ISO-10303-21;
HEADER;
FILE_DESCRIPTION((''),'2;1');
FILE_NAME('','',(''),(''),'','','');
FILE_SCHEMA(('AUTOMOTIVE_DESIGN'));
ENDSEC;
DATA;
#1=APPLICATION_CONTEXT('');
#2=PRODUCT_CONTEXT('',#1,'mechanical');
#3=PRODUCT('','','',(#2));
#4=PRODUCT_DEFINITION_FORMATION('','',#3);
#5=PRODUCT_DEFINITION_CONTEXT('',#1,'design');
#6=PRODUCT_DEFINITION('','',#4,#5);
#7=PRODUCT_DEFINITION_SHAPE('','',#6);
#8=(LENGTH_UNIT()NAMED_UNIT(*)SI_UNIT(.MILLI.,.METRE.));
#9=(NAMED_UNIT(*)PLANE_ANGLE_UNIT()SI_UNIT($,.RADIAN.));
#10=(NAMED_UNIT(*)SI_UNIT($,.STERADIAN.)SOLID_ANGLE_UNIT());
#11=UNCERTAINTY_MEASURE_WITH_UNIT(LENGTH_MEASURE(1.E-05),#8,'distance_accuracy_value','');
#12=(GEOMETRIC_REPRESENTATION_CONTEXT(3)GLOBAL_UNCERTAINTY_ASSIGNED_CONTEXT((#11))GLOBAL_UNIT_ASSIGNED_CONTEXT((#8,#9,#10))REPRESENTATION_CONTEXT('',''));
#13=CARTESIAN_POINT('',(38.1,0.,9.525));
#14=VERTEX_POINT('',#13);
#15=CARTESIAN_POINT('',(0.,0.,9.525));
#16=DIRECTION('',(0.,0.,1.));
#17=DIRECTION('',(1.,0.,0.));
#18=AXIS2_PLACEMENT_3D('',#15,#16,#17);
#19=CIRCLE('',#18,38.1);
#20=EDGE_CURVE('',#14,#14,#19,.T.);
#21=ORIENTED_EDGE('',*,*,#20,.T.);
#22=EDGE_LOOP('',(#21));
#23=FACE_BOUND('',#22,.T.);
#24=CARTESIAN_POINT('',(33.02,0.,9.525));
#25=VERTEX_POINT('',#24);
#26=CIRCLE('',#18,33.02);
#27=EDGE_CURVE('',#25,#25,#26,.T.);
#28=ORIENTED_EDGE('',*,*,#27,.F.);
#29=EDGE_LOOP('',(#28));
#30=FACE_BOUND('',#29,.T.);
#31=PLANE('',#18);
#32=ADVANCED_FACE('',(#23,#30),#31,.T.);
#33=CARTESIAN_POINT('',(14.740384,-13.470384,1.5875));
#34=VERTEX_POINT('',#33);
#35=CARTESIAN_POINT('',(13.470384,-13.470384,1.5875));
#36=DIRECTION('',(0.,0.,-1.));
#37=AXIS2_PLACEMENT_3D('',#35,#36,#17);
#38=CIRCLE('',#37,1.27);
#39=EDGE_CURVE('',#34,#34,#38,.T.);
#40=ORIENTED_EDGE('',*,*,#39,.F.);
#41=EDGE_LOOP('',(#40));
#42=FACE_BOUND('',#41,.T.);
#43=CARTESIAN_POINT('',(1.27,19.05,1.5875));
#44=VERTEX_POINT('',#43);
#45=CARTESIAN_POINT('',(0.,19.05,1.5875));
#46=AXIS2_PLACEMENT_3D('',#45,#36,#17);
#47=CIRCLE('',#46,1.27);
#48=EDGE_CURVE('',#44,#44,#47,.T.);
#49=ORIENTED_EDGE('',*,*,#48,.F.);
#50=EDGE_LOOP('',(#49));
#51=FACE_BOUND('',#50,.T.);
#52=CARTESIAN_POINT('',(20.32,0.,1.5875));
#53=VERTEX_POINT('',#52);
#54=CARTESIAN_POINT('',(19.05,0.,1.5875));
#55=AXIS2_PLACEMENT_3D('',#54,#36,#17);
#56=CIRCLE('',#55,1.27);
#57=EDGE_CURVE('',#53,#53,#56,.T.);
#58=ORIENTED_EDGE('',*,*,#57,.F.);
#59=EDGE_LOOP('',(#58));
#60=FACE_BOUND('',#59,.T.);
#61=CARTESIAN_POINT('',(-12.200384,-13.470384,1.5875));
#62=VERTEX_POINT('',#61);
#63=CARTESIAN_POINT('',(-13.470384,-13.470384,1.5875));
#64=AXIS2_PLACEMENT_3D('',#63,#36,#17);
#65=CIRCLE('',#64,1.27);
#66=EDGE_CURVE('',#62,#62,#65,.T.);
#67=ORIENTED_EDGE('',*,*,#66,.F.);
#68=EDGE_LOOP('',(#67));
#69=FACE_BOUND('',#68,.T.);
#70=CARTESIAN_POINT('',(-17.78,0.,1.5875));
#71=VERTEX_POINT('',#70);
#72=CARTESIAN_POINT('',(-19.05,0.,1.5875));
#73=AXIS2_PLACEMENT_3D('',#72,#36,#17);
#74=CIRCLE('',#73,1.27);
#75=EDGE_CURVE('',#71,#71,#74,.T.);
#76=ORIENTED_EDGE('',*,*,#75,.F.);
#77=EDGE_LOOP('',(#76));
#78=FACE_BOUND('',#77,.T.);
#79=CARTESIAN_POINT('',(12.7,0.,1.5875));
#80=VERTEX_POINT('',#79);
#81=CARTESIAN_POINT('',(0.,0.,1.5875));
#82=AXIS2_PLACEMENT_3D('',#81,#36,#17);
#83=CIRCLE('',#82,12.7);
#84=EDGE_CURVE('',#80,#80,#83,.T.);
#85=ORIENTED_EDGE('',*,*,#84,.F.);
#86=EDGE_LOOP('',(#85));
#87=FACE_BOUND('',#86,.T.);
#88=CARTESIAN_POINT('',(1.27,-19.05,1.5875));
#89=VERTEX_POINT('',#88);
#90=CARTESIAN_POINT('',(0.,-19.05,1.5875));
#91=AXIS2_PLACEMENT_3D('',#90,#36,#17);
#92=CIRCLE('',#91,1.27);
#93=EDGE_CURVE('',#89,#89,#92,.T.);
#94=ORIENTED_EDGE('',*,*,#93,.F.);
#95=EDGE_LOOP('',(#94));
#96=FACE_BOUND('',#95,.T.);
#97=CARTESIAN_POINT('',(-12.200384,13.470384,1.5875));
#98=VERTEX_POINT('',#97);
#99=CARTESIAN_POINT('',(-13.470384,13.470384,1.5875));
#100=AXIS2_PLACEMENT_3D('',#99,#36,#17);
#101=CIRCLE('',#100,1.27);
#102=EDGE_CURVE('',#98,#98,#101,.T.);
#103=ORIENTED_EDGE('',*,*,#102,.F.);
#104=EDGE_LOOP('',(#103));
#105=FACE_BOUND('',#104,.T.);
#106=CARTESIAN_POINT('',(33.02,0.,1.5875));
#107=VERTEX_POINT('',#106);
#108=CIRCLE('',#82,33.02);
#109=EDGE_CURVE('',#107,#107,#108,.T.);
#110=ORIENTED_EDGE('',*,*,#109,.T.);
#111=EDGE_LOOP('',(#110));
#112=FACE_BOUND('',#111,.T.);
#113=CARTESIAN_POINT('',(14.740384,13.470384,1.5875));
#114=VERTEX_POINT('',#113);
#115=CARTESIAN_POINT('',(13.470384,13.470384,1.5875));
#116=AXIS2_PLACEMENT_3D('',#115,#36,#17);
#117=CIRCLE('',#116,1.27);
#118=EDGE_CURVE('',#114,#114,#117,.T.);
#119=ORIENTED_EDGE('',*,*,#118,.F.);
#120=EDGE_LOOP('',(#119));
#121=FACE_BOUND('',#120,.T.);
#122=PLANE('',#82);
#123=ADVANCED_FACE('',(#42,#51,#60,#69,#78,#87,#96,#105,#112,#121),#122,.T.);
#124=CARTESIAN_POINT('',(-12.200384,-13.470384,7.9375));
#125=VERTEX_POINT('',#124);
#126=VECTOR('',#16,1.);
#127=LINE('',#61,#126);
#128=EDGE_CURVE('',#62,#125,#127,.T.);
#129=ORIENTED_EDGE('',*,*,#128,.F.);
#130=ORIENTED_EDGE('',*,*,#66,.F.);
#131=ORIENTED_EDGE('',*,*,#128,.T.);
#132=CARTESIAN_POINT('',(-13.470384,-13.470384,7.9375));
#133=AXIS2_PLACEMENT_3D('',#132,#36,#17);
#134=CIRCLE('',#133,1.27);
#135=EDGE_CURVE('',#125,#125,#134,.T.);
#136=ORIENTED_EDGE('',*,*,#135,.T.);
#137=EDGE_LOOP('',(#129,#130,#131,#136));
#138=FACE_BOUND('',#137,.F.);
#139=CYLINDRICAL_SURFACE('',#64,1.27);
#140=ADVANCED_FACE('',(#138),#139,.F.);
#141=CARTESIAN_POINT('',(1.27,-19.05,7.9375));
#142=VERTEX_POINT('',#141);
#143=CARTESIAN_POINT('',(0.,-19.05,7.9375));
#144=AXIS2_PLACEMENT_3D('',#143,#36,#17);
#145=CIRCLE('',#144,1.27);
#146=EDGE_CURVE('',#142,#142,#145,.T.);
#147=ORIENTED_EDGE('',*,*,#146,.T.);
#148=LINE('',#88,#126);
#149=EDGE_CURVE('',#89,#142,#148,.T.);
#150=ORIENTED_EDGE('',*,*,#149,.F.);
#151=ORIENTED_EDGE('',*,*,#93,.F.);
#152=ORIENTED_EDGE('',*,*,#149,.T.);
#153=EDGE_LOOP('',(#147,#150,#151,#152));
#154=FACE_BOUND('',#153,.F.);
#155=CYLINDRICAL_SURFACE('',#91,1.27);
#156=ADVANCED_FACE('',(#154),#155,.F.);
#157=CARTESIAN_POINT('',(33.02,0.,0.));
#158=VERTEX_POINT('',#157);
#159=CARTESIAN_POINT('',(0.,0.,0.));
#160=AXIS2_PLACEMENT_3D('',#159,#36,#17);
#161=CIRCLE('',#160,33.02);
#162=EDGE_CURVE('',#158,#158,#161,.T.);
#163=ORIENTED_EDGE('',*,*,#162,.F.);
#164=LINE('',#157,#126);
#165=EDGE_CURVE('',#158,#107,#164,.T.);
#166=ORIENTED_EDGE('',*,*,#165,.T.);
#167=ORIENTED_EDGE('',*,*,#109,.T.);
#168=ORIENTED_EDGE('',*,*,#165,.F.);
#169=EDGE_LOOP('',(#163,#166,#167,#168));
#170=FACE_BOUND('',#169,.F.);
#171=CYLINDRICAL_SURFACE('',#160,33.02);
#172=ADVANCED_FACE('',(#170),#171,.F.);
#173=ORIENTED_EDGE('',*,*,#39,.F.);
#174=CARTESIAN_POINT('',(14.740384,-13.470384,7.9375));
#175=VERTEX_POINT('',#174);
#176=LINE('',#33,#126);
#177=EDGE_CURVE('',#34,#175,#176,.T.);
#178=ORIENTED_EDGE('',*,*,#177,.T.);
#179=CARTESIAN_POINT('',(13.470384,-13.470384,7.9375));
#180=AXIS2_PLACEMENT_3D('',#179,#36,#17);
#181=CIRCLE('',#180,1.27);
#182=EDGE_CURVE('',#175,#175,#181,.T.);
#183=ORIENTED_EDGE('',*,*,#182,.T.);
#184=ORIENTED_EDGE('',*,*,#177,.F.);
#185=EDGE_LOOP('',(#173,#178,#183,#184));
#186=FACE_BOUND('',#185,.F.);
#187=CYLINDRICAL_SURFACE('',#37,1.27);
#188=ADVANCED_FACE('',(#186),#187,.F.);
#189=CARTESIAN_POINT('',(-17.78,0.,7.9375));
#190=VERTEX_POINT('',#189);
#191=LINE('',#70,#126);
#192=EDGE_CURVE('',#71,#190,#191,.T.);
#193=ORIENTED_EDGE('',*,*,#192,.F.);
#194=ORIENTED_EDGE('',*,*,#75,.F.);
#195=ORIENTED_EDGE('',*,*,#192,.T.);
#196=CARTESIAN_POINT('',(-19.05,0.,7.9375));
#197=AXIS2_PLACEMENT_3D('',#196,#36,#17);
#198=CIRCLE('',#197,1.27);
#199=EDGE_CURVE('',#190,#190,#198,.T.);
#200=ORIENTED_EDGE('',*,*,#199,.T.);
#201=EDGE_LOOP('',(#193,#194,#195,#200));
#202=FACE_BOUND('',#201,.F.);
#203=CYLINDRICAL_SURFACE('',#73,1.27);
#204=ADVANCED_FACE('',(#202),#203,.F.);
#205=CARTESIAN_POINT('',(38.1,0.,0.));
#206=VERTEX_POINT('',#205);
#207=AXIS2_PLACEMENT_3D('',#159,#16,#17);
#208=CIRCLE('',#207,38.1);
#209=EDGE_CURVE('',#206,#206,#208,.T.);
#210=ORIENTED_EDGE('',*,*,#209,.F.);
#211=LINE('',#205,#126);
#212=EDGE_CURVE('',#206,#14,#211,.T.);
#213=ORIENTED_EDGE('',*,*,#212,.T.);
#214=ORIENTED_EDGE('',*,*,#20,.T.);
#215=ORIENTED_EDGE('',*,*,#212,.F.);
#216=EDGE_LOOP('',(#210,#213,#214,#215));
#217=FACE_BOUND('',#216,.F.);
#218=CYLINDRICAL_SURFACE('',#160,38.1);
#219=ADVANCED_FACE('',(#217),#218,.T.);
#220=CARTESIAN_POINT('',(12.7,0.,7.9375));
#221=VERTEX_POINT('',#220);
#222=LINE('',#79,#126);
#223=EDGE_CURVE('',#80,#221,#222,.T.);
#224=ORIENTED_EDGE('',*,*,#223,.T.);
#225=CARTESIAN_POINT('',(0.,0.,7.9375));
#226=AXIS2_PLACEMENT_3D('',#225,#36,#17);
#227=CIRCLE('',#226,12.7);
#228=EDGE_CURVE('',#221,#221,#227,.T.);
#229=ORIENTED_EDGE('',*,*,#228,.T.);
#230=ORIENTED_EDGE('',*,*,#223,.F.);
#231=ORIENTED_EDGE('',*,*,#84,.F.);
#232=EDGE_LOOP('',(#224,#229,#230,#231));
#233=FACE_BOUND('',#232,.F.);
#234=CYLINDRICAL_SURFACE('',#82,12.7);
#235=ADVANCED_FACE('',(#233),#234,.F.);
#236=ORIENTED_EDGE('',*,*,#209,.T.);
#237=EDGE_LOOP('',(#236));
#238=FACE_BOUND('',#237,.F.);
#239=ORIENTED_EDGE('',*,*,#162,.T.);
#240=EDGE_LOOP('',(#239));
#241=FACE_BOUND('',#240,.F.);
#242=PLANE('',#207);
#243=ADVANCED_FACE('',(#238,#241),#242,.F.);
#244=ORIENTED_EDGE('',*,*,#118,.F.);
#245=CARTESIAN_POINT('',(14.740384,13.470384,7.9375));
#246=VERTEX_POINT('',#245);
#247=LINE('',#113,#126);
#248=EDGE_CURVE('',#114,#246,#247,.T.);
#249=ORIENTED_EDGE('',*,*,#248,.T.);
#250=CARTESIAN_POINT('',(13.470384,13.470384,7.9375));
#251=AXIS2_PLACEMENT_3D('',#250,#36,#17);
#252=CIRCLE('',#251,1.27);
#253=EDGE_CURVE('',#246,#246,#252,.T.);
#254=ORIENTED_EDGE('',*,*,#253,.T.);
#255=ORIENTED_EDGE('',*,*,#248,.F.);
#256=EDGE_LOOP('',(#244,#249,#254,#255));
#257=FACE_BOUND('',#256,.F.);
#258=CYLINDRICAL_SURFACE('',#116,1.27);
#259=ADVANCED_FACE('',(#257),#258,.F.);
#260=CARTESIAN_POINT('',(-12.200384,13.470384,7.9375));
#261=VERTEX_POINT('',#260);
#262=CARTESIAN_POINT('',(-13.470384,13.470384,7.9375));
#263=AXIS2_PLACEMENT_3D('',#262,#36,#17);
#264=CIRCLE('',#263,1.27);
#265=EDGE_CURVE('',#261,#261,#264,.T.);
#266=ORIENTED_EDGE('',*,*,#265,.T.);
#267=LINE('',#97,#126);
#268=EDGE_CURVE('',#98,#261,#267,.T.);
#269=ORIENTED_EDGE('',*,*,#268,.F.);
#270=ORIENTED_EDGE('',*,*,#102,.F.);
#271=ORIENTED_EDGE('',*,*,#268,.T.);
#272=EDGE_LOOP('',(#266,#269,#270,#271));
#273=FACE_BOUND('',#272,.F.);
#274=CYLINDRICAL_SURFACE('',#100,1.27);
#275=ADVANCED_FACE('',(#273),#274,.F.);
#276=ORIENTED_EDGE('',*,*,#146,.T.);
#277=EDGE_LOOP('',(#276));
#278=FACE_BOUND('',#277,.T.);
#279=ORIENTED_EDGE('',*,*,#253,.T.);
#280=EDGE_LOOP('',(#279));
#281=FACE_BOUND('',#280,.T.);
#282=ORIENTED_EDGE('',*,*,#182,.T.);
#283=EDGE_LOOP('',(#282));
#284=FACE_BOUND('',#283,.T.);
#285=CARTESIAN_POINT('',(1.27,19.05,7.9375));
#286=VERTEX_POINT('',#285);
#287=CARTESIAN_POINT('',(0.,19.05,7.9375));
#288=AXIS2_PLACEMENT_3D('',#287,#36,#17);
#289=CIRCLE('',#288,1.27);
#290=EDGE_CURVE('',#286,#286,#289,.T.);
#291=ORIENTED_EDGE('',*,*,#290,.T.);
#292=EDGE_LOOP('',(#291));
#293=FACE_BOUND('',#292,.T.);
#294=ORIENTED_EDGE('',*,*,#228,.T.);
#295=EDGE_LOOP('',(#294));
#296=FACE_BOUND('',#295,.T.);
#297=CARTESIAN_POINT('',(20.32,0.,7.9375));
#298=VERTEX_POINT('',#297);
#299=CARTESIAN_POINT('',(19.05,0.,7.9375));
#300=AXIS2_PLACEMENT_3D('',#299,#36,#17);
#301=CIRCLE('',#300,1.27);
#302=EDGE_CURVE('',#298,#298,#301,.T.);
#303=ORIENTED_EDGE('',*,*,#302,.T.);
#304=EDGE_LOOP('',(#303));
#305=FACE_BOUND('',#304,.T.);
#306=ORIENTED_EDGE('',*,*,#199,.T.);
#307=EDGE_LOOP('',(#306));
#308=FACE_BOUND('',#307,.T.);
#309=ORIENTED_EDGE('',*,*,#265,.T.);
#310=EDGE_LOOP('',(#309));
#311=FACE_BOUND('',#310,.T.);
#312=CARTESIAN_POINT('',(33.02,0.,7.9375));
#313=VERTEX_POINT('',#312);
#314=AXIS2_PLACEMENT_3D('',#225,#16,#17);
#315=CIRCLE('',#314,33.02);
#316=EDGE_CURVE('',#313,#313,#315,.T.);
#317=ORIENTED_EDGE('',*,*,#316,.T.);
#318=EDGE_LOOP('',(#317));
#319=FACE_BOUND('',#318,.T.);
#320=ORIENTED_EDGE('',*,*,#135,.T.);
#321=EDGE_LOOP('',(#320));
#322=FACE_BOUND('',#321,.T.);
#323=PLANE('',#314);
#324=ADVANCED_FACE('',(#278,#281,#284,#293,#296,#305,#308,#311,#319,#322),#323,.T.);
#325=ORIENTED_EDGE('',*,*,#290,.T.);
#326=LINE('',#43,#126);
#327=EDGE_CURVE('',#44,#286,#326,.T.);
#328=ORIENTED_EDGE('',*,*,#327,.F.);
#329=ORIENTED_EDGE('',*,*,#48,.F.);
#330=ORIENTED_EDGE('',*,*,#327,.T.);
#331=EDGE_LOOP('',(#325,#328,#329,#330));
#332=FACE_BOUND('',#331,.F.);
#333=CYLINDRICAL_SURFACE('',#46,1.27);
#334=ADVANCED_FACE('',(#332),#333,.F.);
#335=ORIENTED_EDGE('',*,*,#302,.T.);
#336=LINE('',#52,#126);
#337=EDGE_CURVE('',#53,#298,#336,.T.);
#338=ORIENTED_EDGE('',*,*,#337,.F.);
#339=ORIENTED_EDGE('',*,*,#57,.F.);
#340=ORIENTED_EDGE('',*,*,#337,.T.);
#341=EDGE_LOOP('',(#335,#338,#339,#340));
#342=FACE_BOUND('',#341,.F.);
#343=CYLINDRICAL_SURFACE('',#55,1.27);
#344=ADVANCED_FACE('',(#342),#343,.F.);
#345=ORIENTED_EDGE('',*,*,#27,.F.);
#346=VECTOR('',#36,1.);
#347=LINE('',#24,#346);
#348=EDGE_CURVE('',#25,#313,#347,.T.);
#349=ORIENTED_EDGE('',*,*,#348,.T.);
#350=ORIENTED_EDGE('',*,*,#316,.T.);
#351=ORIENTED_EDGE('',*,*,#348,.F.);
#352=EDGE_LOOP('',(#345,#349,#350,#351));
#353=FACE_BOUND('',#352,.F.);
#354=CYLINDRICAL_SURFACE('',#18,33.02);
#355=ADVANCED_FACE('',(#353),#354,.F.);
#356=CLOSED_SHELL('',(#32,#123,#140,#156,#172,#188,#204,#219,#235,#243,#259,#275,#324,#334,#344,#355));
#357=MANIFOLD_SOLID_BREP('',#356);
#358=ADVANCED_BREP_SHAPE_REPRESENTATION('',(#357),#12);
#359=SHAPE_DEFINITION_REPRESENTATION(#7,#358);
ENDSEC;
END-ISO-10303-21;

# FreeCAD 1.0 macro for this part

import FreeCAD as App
import Part
import Sketcher
Q = App.Units.Quantity

doc = App.newDocument("Part")
params = doc.addObject("Spreadsheet::Sheet", "Params")
for row, (alias, value) in enumerate([
    ("sketch1_diameter", "3 in"),
    ("pad1_length", "0.375 in"),
    ("sketch2_diameter", "2.6 in"),
    ("pocket1_length", "0.0625 in"),
    ("sketch3_diameter", "2.6 in"),
    ("pocket2_length", "0.0625 in"),
    ("sketch4_diameter", "1 in"),
    ("sketch4_diameter2", "0.1 in"),
    ("pocket3_length", "1 in"),
], start=1):
    params.set(f"A{row}", alias)
    params.set(f"B{row}", "=" + value)
    params.setAlias(f"B{row}", alias)

body = doc.addObject("PartDesign::Body", "Body")

# Sketch on XY plane
sketch1 = body.newObject("Sketcher::SketchObject", "Sketch")
sketch1.AttachmentSupport = (doc.getObject("XY_Plane"), [""])
sketch1.MapMode = "FlatFace"
sketch1.addGeometry(Part.Circle(App.Vector(0, 0, 0), App.Vector(0, 0, 1), 38), False)
sketch1.addConstraint(Sketcher.Constraint("Coincident", 0, 3, -1, 1))
sketch1.addConstraint(Sketcher.Constraint("Diameter", 0, Q("3 in")))
sketch1.setExpression("Constraints[1]", "Params.sketch1_diameter")
pad1 = body.newObject("PartDesign::Pad", "Pad")
pad1.Profile = sketch1
pad1.setExpression("Length", "Params.pad1_length")

# Sketch on XY plane
sketch2 = body.newObject("Sketcher::SketchObject", "Sketch001")
sketch2.AttachmentSupport = (doc.getObject("XY_Plane"), [""])
sketch2.MapMode = "FlatFace"
sketch2.addGeometry(Part.Circle(App.Vector(0, 0, 0), App.Vector(0, 0, 1), 33), False)
sketch2.addConstraint(Sketcher.Constraint("Coincident", 0, 3, -1, 1))
sketch2.addConstraint(Sketcher.Constraint("Diameter", 0, Q("2.6 in")))
sketch2.setExpression("Constraints[1]", "Params.sketch2_diameter")
pocket1 = body.newObject("PartDesign::Pocket", "Pocket")
pocket1.Profile = sketch2
pocket1.setExpression("Length", "Params.pocket1_length")
pocket1.Reversed = True

# Sketch on XY plane
sketch3 = body.newObject("Sketcher::SketchObject", "Sketch002")
sketch3.AttachmentSupport = (doc.getObject("XY_Plane"), [""])
sketch3.MapMode = "FlatFace"
sketch3.AttachmentOffset = App.Placement(App.Vector(0, 0, 0.375 * 25.4), App.Rotation())
sketch3.addGeometry(Part.Circle(App.Vector(0, 0, 0), App.Vector(0, 0, 1), 33), False)
sketch3.addConstraint(Sketcher.Constraint("Coincident", 0, 3, -1, 1))
sketch3.addConstraint(Sketcher.Constraint("Diameter", 0, Q("2.6 in")))
sketch3.setExpression("Constraints[1]", "Params.sketch3_diameter")
pocket2 = body.newObject("PartDesign::Pocket", "Pocket001")
pocket2.Profile = sketch3
pocket2.setExpression("Length", "Params.pocket2_length")

# Sketch on XY plane
sketch4 = body.newObject("Sketcher::SketchObject", "Sketch003")
sketch4.AttachmentSupport = (doc.getObject("XY_Plane"), [""])
sketch4.MapMode = "FlatFace"
sketch4.AttachmentOffset = App.Placement(App.Vector(0, 0, 0.0625 * 25.4), App.Rotation())
sketch4.addGeometry(Part.Circle(App.Vector(0, 0, 0), App.Vector(0, 0, 1), 12.7), False)
sketch4.addGeometry(Part.Circle(App.Vector(-19.1, 0, 0), App.Vector(0, 0, 1), 1.3), False)
sketch4.addGeometry(Part.Circle(App.Vector(-13.5, 13.5, 0), App.Vector(0, 0, 1), 1.3), False)
sketch4.addGeometry(Part.Circle(App.Vector(0, 19.1, 0), App.Vector(0, 0, 1), 1.3), False)
sketch4.addGeometry(Part.Circle(App.Vector(13.5, 13.5, 0), App.Vector(0, 0, 1), 1.3), False)
sketch4.addGeometry(Part.Circle(App.Vector(19.1, 0, 0), App.Vector(0, 0, 1), 1.3), False)
sketch4.addGeometry(Part.Circle(App.Vector(13.5, -13.5, 0), App.Vector(0, 0, 1), 1.3), False)
sketch4.addGeometry(Part.Circle(App.Vector(0, -19.1, 0), App.Vector(0, 0, 1), 1.3), False)
sketch4.addGeometry(Part.Circle(App.Vector(-13.5, -13.5, 0), App.Vector(0, 0, 1), 1.3), False)
sketch4.addConstraint(Sketcher.Constraint("Coincident", 0, 3, -1, 1))
sketch4.addConstraint(Sketcher.Constraint("Equal", 1, 2))
sketch4.addConstraint(Sketcher.Constraint("Equal", 2, 3))
sketch4.addConstraint(Sketcher.Constraint("Equal", 3, 4))
sketch4.addConstraint(Sketcher.Constraint("Equal", 4, 5))
sketch4.addConstraint(Sketcher.Constraint("Equal", 5, 6))
sketch4.addConstraint(Sketcher.Constraint("Equal", 6, 7))
sketch4.addConstraint(Sketcher.Constraint("Equal", 7, 8))
sketch4.addConstraint(Sketcher.Constraint("Symmetric", 1, 3, 5, 3, -1, 1))
sketch4.addConstraint(Sketcher.Constraint("Symmetric", 2, 3, 6, 3, -1, 1))
sketch4.addConstraint(Sketcher.Constraint("Symmetric", 3, 3, 7, 3, -1, 1))
sketch4.addConstraint(Sketcher.Constraint("Symmetric", 4, 3, 8, 3, -1, 1))
sketch4.addConstraint(Sketcher.Constraint("Symmetric", 2, 3, 4, 3, -2))
sketch4.addConstraint(Sketcher.Constraint("PointOnObject", 1, 3, -1))
sketch4.addConstraint(Sketcher.Constraint("PointOnObject", 3, 3, -2))
sketch4.addConstraint(Sketcher.Constraint("Diameter", 0, Q("1 in")))
sketch4.addConstraint(Sketcher.Constraint("Diameter", 1, Q("0.1 in")))
sketch4.addConstraint(Sketcher.Constraint("DistanceX", 1, 3, 5, 3, Q("1.5 in")))
sketch4.addConstraint(Sketcher.Constraint("DistanceY", -1, 1, 3, 3, Q("0.75 in")))
sketch4.addConstraint(Sketcher.Constraint("DistanceX", 2, 3, -1, 1, Q("13.470384 mm")))
sketch4.addConstraint(Sketcher.Constraint("DistanceY", -1, 1, 2, 3, Q("13.470384 mm")))
sketch4.setExpression("Constraints[15]", "Params.sketch4_diameter")
sketch4.setExpression("Constraints[16]", "Params.sketch4_diameter2")
pocket3 = body.newObject("PartDesign::Pocket", "Pocket002")
pocket3.Profile = sketch4
pocket3.setExpression("Length", "Params.pocket3_length")
pocket3.Reversed = True

doc.recompute()
